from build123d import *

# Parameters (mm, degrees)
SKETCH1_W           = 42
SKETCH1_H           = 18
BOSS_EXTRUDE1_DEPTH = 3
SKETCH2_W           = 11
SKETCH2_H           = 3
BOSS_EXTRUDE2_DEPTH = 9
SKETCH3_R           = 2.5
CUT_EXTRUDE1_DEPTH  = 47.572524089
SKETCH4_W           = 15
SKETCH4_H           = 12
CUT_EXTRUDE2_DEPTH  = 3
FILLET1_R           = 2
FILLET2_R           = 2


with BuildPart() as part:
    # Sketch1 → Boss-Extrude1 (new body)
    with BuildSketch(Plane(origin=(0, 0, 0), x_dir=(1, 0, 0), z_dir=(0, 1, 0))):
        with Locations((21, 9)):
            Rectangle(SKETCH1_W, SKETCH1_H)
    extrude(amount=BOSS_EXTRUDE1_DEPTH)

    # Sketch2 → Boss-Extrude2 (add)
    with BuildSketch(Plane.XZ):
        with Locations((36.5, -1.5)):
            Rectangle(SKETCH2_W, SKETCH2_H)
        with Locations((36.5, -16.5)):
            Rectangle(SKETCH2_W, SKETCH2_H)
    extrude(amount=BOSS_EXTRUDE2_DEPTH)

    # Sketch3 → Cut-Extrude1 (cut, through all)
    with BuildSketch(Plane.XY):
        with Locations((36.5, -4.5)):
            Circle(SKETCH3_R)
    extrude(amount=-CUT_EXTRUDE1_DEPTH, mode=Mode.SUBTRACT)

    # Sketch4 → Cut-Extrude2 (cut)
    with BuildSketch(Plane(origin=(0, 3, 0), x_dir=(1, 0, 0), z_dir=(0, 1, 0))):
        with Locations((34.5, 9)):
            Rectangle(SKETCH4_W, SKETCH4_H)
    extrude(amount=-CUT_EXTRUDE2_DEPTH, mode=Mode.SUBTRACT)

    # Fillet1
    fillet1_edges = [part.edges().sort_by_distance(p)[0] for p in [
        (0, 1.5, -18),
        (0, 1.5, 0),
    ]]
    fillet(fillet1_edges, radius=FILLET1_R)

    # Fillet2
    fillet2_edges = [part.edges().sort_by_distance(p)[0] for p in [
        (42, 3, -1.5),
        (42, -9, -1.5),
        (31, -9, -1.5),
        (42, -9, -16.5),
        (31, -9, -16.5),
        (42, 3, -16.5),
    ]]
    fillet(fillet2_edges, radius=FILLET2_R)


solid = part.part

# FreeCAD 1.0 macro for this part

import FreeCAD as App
import Part
import Sketcher

V = App.Vector
Q = App.Units.Quantity


def edges_at(feature, points):
    """Names of the edges that pass closest to the given points."""
    edges = feature.Shape.Edges
    near = lambda p: min(range(len(edges)), key=lambda i: edges[i].distToShape(Part.Vertex(*p))[0])
    return sorted({f"Edge{near(p) + 1}" for p in points})

doc = App.newDocument("Part")
body = doc.addObject("PartDesign::Body", "Body")

# Sketch on XZ plane
sketch1 = body.newObject("Sketcher::SketchObject", "Sketch")
sketch1.AttachmentSupport = (doc.getObject("XZ_Plane"), [""])
sketch1.MapMode = "FlatFace"
sketch1.addGeometry([
    Part.LineSegment(V(0, -18, 0), V(0, 0, 0)),
    Part.LineSegment(V(0, 0, 0), V(42, 0, 0)),
    Part.LineSegment(V(42, 0, 0), V(42, -18, 0)),
    Part.LineSegment(V(42, -18, 0), V(0, -18, 0)),
], False)
sketch1.addConstraint([
    Sketcher.Constraint("Coincident", 0, 2, 1, 1),
    Sketcher.Constraint("Coincident", 1, 2, 2, 1),
    Sketcher.Constraint("Coincident", 2, 2, 3, 1),
    Sketcher.Constraint("Coincident", 3, 2, 0, 1),
    Sketcher.Constraint("Vertical", 0),
    Sketcher.Constraint("Horizontal", 1),
    Sketcher.Constraint("Vertical", 2),
    Sketcher.Constraint("Horizontal", 3),
    Sketcher.Constraint("Coincident", 0, 2, -1, 1),
    Sketcher.Constraint("DistanceX", 1, 1, 1, 2, Q("42 mm")),
    Sketcher.Constraint("DistanceY", 0, 1, 0, 2, Q("18 mm")),
])
pad1 = body.newObject("PartDesign::Pad", "Pad")
pad1.Profile = sketch1
pad1.Length = 3
pad1.Reversed = True

# Sketch on XZ plane
sketch2 = body.newObject("Sketcher::SketchObject", "Sketch001")
sketch2.AttachmentSupport = (doc.getObject("XZ_Plane"), [""])
sketch2.MapMode = "FlatFace"
sketch2.addGeometry([
    Part.LineSegment(V(31, 0, 0), V(31, -3, 0)),  # 0
    Part.LineSegment(V(31, -3, 0), V(42, -3, 0)),  # 1
    Part.LineSegment(V(42, -3, 0), V(42, 0, 0)),  # 2
    Part.LineSegment(V(42, 0, 0), V(31, 0, 0)),  # 3
    Part.LineSegment(V(31, -15, 0), V(31, -18, 0)),  # 4
    Part.LineSegment(V(31, -18, 0), V(42, -18, 0)),  # 5
    Part.LineSegment(V(42, -18, 0), V(42, -15, 0)),  # 6
    Part.LineSegment(V(42, -15, 0), V(31, -15, 0)),  # 7
], False)
sketch2.addConstraint([
    Sketcher.Constraint("Coincident", 0, 2, 1, 1),
    Sketcher.Constraint("Coincident", 1, 2, 2, 1),
    Sketcher.Constraint("Coincident", 2, 2, 3, 1),
    Sketcher.Constraint("Coincident", 3, 2, 0, 1),
    Sketcher.Constraint("Coincident", 4, 2, 5, 1),
    Sketcher.Constraint("Coincident", 5, 2, 6, 1),
    Sketcher.Constraint("Coincident", 6, 2, 7, 1),
    Sketcher.Constraint("Coincident", 7, 2, 4, 1),
    Sketcher.Constraint("Vertical", 0),
    Sketcher.Constraint("Horizontal", 1),
    Sketcher.Constraint("Vertical", 2),
    Sketcher.Constraint("Horizontal", 3),
    Sketcher.Constraint("Vertical", 4),
    Sketcher.Constraint("Horizontal", 5),
    Sketcher.Constraint("Vertical", 6),
    Sketcher.Constraint("Horizontal", 7),
    Sketcher.Constraint("PointOnObject", 2, 2, -1),
    Sketcher.Constraint("Vertical", 3, 2, 4, 2),
    Sketcher.Constraint("Vertical", 2, 2, 5, 2),
    Sketcher.Constraint("Equal", 2, 4),
    Sketcher.Constraint("DistanceX", 1, 1, 1, 2, Q("11 mm")),
    Sketcher.Constraint("DistanceY", 0, 2, 0, 1, Q("3 mm")),
    Sketcher.Constraint("DistanceX", -1, 1, 0, 2, Q("31 mm")),
    Sketcher.Constraint("DistanceY", 4, 2, -1, 1, Q("18 mm")),
])
pad2 = body.newObject("PartDesign::Pad", "Pad001")
pad2.Profile = sketch2
pad2.Length = 9

# Sketch on XY plane
sketch3 = body.newObject("Sketcher::SketchObject", "Sketch002")
sketch3.AttachmentSupport = (doc.getObject("XY_Plane"), [""])
sketch3.MapMode = "FlatFace"
sketch3.addGeometry(Part.Circle(V(36.5, -4.5, 0), V(0, 0, 1), 2.5), False)
sketch3.addConstraint([
    Sketcher.Constraint("Diameter", 0, Q("5 mm")),
    Sketcher.Constraint("DistanceX", -1, 1, 0, 3, Q("36.5 mm")),
    Sketcher.Constraint("DistanceY", 0, 3, -1, 1, Q("4.5 mm")),
])
pocket1 = body.newObject("PartDesign::Pocket", "Pocket")
pocket1.Profile = sketch3
pocket1.Type = "ThroughAll"

# Sketch on XZ plane
sketch4 = body.newObject("Sketcher::SketchObject", "Sketch003")
sketch4.AttachmentSupport = (doc.getObject("XZ_Plane"), [""])
sketch4.MapMode = "FlatFace"
sketch4.AttachmentOffset = App.Placement(V(0, 0, -3), App.Rotation())
sketch4.addGeometry([
    Part.LineSegment(V(27, -15, 0), V(27, -3, 0)),
    Part.LineSegment(V(27, -3, 0), V(42, -3, 0)),
    Part.LineSegment(V(42, -3, 0), V(42, -15, 0)),
    Part.LineSegment(V(42, -15, 0), V(27, -15, 0)),
], False)
sketch4.addConstraint([
    Sketcher.Constraint("Coincident", 0, 2, 1, 1),
    Sketcher.Constraint("Coincident", 1, 2, 2, 1),
    Sketcher.Constraint("Coincident", 2, 2, 3, 1),
    Sketcher.Constraint("Coincident", 3, 2, 0, 1),
    Sketcher.Constraint("Vertical", 0),
    Sketcher.Constraint("Horizontal", 1),
    Sketcher.Constraint("Vertical", 2),
    Sketcher.Constraint("Horizontal", 3),
    Sketcher.Constraint("DistanceX", 1, 1, 1, 2, Q("15 mm")),
    Sketcher.Constraint("DistanceY", 0, 1, 0, 2, Q("12 mm")),
    Sketcher.Constraint("DistanceX", -1, 1, 0, 2, Q("27 mm")),
    Sketcher.Constraint("DistanceY", 0, 2, -1, 1, Q("3 mm")),
])
pocket2 = body.newObject("PartDesign::Pocket", "Pocket001")
pocket2.Profile = sketch4
pocket2.Length = 3
pocket2.Reversed = True
doc.recompute()

fillet = body.newObject("PartDesign::Fillet", "Fillet")
fillet.Base = (pocket2, edges_at(pocket2, [(0, 1.5, -18), (0, 1.5, 0)]))
fillet.Radius = 2
doc.recompute()

fillet2 = body.newObject("PartDesign::Fillet", "Fillet001")
fillet2.Base = (fillet, edges_at(fillet, [
    (42, 3, -1.5),
    (42, -9, -1.5),
    (31, -9, -1.5),
    (42, -9, -16.5),
    (31, -9, -16.5),
    (42, 3, -16.5),
]))
fillet2.Radius = 2

doc.recompute()
